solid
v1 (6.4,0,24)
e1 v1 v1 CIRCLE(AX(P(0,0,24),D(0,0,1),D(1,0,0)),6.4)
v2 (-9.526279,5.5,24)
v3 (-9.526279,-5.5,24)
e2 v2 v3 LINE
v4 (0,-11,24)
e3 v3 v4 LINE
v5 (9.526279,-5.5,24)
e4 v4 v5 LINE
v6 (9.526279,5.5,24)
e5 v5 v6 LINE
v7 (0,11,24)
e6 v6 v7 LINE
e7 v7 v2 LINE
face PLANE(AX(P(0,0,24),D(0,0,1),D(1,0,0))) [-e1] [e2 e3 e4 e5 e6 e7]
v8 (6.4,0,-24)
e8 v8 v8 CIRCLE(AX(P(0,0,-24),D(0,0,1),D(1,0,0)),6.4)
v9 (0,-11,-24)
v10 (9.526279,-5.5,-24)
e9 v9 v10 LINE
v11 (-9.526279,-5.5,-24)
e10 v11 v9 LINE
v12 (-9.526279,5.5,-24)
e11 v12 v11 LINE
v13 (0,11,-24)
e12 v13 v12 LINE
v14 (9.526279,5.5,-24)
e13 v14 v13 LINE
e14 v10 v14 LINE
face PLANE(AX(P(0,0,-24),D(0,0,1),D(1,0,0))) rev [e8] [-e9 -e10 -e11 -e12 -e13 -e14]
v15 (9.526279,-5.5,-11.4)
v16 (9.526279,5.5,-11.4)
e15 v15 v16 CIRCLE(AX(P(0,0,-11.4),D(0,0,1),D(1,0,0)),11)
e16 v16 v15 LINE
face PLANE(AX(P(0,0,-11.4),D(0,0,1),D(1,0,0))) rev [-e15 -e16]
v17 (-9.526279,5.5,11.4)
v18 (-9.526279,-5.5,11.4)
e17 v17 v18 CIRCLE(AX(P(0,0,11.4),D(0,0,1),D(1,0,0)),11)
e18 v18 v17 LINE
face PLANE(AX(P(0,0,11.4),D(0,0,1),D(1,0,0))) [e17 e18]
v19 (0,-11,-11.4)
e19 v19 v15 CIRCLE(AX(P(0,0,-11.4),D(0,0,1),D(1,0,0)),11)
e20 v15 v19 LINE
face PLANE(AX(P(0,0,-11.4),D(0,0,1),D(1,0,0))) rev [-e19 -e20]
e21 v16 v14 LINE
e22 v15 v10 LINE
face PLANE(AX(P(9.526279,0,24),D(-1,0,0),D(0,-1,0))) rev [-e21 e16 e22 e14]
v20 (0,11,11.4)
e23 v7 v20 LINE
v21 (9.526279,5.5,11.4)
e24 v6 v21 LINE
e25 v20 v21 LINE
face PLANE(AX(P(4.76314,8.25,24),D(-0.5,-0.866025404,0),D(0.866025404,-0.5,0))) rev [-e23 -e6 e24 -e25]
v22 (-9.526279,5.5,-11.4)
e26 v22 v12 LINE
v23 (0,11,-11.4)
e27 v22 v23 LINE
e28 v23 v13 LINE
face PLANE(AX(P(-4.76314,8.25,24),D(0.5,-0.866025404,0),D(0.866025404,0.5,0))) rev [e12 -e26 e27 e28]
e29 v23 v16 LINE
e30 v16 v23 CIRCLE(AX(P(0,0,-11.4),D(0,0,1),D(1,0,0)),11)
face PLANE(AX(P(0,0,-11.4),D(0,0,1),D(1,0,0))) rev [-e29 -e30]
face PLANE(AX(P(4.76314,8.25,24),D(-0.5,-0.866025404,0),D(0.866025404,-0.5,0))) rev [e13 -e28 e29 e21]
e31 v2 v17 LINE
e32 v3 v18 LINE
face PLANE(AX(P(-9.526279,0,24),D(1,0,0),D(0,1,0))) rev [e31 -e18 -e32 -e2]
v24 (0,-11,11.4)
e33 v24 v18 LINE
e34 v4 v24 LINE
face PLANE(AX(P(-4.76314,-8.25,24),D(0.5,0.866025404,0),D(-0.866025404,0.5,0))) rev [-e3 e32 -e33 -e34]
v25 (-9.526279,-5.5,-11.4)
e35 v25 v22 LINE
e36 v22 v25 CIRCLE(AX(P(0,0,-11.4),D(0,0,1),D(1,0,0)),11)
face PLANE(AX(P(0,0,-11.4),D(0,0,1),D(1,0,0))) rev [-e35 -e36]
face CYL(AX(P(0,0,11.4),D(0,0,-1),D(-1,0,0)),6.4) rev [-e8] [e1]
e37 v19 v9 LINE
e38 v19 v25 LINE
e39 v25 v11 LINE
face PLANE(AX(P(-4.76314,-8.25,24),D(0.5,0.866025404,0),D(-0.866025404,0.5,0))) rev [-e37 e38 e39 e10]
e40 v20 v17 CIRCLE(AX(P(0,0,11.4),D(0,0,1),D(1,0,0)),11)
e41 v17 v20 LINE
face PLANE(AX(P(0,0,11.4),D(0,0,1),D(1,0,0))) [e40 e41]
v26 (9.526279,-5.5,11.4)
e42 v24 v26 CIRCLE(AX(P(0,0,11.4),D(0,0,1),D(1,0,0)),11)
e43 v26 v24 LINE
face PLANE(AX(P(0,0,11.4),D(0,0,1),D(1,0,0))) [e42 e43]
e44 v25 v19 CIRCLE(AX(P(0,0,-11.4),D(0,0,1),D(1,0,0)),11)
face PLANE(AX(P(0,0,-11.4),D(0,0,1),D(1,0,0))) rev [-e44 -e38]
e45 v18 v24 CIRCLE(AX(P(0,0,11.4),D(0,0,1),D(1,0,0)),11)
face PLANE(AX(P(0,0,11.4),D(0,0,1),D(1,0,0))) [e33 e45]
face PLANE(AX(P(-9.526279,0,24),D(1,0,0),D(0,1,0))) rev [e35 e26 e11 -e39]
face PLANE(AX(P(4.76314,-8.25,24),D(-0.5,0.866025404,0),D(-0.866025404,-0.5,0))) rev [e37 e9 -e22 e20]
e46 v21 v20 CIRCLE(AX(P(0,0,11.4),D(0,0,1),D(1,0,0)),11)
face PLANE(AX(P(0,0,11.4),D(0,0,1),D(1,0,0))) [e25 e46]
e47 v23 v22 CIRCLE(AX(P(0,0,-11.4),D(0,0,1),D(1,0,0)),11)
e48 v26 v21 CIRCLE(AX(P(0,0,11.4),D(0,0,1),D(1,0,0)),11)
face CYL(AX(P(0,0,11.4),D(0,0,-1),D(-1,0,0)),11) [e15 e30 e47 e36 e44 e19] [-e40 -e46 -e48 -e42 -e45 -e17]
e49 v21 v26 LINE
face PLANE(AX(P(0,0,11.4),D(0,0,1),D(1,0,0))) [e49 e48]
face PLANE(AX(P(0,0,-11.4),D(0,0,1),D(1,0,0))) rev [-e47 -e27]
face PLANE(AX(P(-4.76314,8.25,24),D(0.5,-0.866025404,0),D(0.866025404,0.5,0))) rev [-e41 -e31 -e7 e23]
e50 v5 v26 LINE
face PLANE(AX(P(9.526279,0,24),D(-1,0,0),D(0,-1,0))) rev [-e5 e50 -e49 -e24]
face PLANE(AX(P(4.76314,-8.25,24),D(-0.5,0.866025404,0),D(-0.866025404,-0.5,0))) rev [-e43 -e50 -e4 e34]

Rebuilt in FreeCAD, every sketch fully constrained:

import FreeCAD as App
import Part
import Sketcher
Q = App.Units.Quantity

doc = App.newDocument("Part")
body = doc.addObject("PartDesign::Body", "Body")

sketch1 = doc.addObject("Sketcher::SketchObject", "Sketch")
body.addObject(sketch1)
sketch1.AttachmentSupport = (doc.XY_Plane, [""])
sketch1.MapMode = "FlatFace"
sketch1.addGeometry([
    Part.Circle(App.Vector(0, 0, 0), App.Vector(0, 0, 1), 11),
    Part.Circle(App.Vector(0, 0, 0), App.Vector(0, 0, 1), 6.4),
], False)
sketch1.addConstraint([
    Sketcher.Constraint("Coincident", 0, 3, -1, 1),
    Sketcher.Constraint("Coincident", 1, 3, -1, 1),
    Sketcher.Constraint("Diameter", 0, 22.0),
    Sketcher.Constraint("Diameter", 1, 12.8),
])
pad1 = doc.addObject("PartDesign::Pad", "Pad")
body.addObject(pad1)
pad1.Profile = sketch1
pad1.Length = 22.8
pad1.Midplane = True

sketch2 = doc.addObject("Sketcher::SketchObject", "Sketch001")
body.addObject(sketch2)
sketch2.AttachmentSupport = (doc.XY_Plane, [""])
sketch2.MapMode = "FlatFace"
sketch2.addGeometry([
    Part.LineSegment(App.Vector(-9.526279, 5.5, 0), App.Vector(-9.526279, -5.5, 0)),
    Part.LineSegment(App.Vector(-9.526279, -5.5, 0), App.Vector(0, -11, 0)),
    Part.LineSegment(App.Vector(0, -11, 0), App.Vector(9.526279, -5.5, 0)),
    Part.LineSegment(App.Vector(9.526279, -5.5, 0), App.Vector(9.526279, 5.5, 0)),
    Part.LineSegment(App.Vector(9.526279, 5.5, 0), App.Vector(0, 11, 0)),
    Part.LineSegment(App.Vector(0, 11, 0), App.Vector(-9.526279, 5.5, 0)),
    Part.Circle(App.Vector(0, 0, 0), App.Vector(0, 0, 1), 6.4),
], False)
sketch2.addConstraint([
    Sketcher.Constraint("Coincident", 0, 2, 1, 1),
    Sketcher.Constraint("Coincident", 1, 2, 2, 1),
    Sketcher.Constraint("Coincident", 2, 2, 3, 1),
    Sketcher.Constraint("Coincident", 3, 2, 4, 1),
    Sketcher.Constraint("Coincident", 4, 2, 5, 1),
    Sketcher.Constraint("Coincident", 5, 2, 0, 1),
    Sketcher.Constraint("Vertical", 0),
    Sketcher.Constraint("Vertical", 3),
    Sketcher.Constraint("Coincident", 6, 3, -1, 1),
    Sketcher.Constraint("Symmetric", 0, 2, 3, 2, -1, 1),
    Sketcher.Constraint("Symmetric", 1, 2, 4, 2, -1, 1),
    Sketcher.Constraint("PointOnObject", 1, 2, -2),
    Sketcher.Constraint("Parallel", 2, 5),
    Sketcher.Constraint("Horizontal", 0, 2, 2, 2),
    Sketcher.Constraint("Diameter", 6, 12.8),
    Sketcher.Constraint("DistanceY", 0, 2, 0, 1, 11.0),
    Sketcher.Constraint("Angle", 1, Q("-30 deg")),
    Sketcher.Constraint("Distance", 1, 11.0),
])
pad2 = doc.addObject("PartDesign::Pad", "Pad001")
body.addObject(pad2)
pad2.Profile = sketch2
pad2.Length = 48
pad2.Midplane = True

doc.recompute()
